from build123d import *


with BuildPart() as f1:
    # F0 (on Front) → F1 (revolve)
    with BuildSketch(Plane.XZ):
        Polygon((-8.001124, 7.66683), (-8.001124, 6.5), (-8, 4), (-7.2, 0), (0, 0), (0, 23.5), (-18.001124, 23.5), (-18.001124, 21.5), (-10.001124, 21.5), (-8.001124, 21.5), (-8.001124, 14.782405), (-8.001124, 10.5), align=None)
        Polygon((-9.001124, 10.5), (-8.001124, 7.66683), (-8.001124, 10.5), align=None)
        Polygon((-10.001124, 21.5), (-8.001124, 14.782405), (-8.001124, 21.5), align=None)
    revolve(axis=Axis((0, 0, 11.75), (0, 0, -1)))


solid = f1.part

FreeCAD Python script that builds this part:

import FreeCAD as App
import Part
import Sketcher
from FreeCAD import Vector

doc = App.newDocument("Part")
body = doc.addObject("PartDesign::Body", "Body")

# Sketch on XZ plane
sketch1 = body.newObject("Sketcher::SketchObject", "Sketch")
sketch1.AttachmentSupport = (doc.getObject("XZ_Plane"), [""])
sketch1.MapMode = "FlatFace"
sketch1.addGeometry(Part.LineSegment(Vector(-8.001124, 6.5, 0), Vector(-8, 4, 0)), False)
sketch1.addGeometry(Part.LineSegment(Vector(-8, 4, 0), Vector(-7.2, 0, 0)), False)
sketch1.addGeometry(Part.LineSegment(Vector(-7.2, 0, 0), Vector(0, 0, 0)), False)
sketch1.addGeometry(Part.LineSegment(Vector(0, 0, 0), Vector(0, 23.5, 0)), False)
sketch1.addGeometry(Part.LineSegment(Vector(0, 23.5, 0), Vector(-18.001124, 23.5, 0)), False)
sketch1.addGeometry(Part.LineSegment(Vector(-18.001124, 23.5, 0), Vector(-18.001124, 21.5, 0)), False)
sketch1.addGeometry(Part.LineSegment(Vector(-18.001124, 21.5, 0), Vector(-10.001124, 21.5, 0)), False)
sketch1.addGeometry(Part.LineSegment(Vector(-10.001124, 21.5, 0), Vector(-8.001124, 14.782405, 0)), False)
sketch1.addGeometry(Part.LineSegment(Vector(-8.001124, 14.782405, 0), Vector(-8.001124, 10.5, 0)), False)
sketch1.addGeometry(Part.LineSegment(Vector(-8.001124, 10.5, 0), Vector(-9.001124, 10.5, 0)), False)
sketch1.addGeometry(Part.LineSegment(Vector(-9.001124, 10.5, 0), Vector(-8.001124, 7.66683, 0)), False)
sketch1.addGeometry(Part.LineSegment(Vector(-8.001124, 7.66683, 0), Vector(-8.001124, 6.5, 0)), False)
sketch1.addConstraint(Sketcher.Constraint("Coincident", 0, 2, 1, 1))
sketch1.addConstraint(Sketcher.Constraint("Coincident", 1, 2, 2, 1))
sketch1.addConstraint(Sketcher.Constraint("Coincident", 2, 2, 3, 1))
sketch1.addConstraint(Sketcher.Constraint("Coincident", 3, 2, 4, 1))
sketch1.addConstraint(Sketcher.Constraint("Coincident", 4, 2, 5, 1))
sketch1.addConstraint(Sketcher.Constraint("Coincident", 5, 2, 6, 1))
sketch1.addConstraint(Sketcher.Constraint("Coincident", 6, 2, 7, 1))
sketch1.addConstraint(Sketcher.Constraint("Coincident", 7, 2, 8, 1))
sketch1.addConstraint(Sketcher.Constraint("Coincident", 8, 2, 9, 1))
sketch1.addConstraint(Sketcher.Constraint("Coincident", 9, 2, 10, 1))
sketch1.addConstraint(Sketcher.Constraint("Coincident", 10, 2, 11, 1))
sketch1.addConstraint(Sketcher.Constraint("Coincident", 11, 2, 0, 1))
sketch1.addConstraint(Sketcher.Constraint("Horizontal", 2))
sketch1.addConstraint(Sketcher.Constraint("Vertical", 3))
sketch1.addConstraint(Sketcher.Constraint("Horizontal", 4))
sketch1.addConstraint(Sketcher.Constraint("Vertical", 5))
sketch1.addConstraint(Sketcher.Constraint("Horizontal", 6))
sketch1.addConstraint(Sketcher.Constraint("Vertical", 8))
sketch1.addConstraint(Sketcher.Constraint("Horizontal", 9))
sketch1.addConstraint(Sketcher.Constraint("Vertical", 11))
sketch1.addConstraint(Sketcher.Constraint("Coincident", 2, 2, -1, 1))
sketch1.addConstraint(Sketcher.Constraint("Vertical", 8, 2, 10, 2))
sketch1.addConstraint(Sketcher.Constraint("DistanceX", 6, 1, 6, 2, 8.0))
sketch1.addConstraint(Sketcher.Constraint("DistanceX", 9, 2, 9, 1, 1.0))
sketch1.addConstraint(Sketcher.Constraint("DistanceY", 5, 2, 5, 1, 2.0))
sketch1.addConstraint(Sketcher.Constraint("DistanceX", 2, 1, 2, 2, 7.2))
sketch1.addConstraint(Sketcher.Constraint("DistanceY", 3, 1, 3, 2, 23.5))
sketch1.addConstraint(Sketcher.Constraint("DistanceX", 0, 2, -1, 1, 8.0))
sketch1.addConstraint(Sketcher.Constraint("DistanceY", -1, 1, 0, 2, 4.0))
sketch1.addConstraint(Sketcher.Constraint("DistanceX", 6, 2, 7, 2, 2.0))
sketch1.addConstraint(Sketcher.Constraint("DistanceY", 8, 2, 6, 2, 11.0))
sketch1.addConstraint(Sketcher.Constraint("DistanceY", 11, 2, 8, 2, 4.0))
sketch1.addConstraint(Sketcher.Constraint("Distance", 7, 7.009))
sketch1.addConstraint(Sketcher.Constraint("DistanceY", 11, 2, 11, 1, 1.16683))
sketch1.addConstraint(Sketcher.Constraint("DistanceX", 4, 2, 4, 1, 18.001124))
revolution = body.newObject("PartDesign::Revolution", "Revolution")
revolution.Profile = sketch1
revolution.ReferenceAxis = (sketch1, ["V_Axis"])
revolution.Angle = 360

doc.recompute()
